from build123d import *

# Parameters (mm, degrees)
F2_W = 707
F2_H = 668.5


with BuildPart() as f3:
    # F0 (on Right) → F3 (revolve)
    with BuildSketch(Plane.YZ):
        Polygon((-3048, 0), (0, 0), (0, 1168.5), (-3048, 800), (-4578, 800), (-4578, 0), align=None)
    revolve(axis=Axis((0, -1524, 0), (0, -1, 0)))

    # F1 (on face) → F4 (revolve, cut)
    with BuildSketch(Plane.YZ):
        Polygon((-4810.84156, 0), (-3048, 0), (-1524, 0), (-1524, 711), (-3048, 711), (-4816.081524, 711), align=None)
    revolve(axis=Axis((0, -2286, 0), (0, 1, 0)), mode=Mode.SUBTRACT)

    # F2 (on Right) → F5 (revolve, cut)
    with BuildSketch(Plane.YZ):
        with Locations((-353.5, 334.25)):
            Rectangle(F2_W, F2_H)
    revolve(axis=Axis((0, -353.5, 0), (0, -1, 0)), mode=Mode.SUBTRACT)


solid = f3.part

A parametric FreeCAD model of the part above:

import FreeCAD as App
import Part
import Sketcher

V = App.Vector
Q = App.Units.Quantity

doc = App.newDocument("Part")
body = doc.addObject("PartDesign::Body", "Body")

# Sketch on YZ plane
sketch1 = body.newObject("Sketcher::SketchObject", "Sketch")
sketch1.AttachmentSupport = (doc.getObject("YZ_Plane"), [""])
sketch1.MapMode = "FlatFace"
sketch1.addGeometry([
    Part.LineSegment(V(0, 0, 0), V(0, 1168, 0)),  # 0
    Part.LineSegment(V(0, 1168, 0), V(-3048, 800, 0)),  # 1
    Part.LineSegment(V(-3048, 800, 0), V(-4578, 800, 0)),  # 2
    Part.LineSegment(V(-4578, 800, 0), V(-4578, 0, 0)),  # 3
    Part.LineSegment(V(-4578, 0, 0), V(0, 0, 0)),  # 4
], False)
sketch1.addConstraint([
    Sketcher.Constraint("Coincident", 0, 2, 1, 1),
    Sketcher.Constraint("Coincident", 1, 2, 2, 1),
    Sketcher.Constraint("Coincident", 2, 2, 3, 1),
    Sketcher.Constraint("Coincident", 3, 2, 4, 1),
    Sketcher.Constraint("Coincident", 4, 2, 0, 1),
    Sketcher.Constraint("Vertical", 0),
    Sketcher.Constraint("Horizontal", 2),
    Sketcher.Constraint("Vertical", 3),
    Sketcher.Constraint("Horizontal", 4),
    Sketcher.Constraint("Coincident", 4, 2, -1, 1),
    Sketcher.Constraint("DistanceX", 2, 2, 2, 1, Q("1530 mm")),
    Sketcher.Constraint("DistanceX", 4, 1, 4, 2, Q("4578 mm")),
    Sketcher.Constraint("DistanceY", 3, 2, 3, 1, Q("800 mm")),
    Sketcher.Constraint("DistanceY", 0, 1, 0, 2, Q("1168.5 mm")),
])
revolution = body.newObject("PartDesign::Revolution", "Revolution")
revolution.Profile = sketch1
revolution.ReferenceAxis = (sketch1, ["H_Axis"])
revolution.Angle = 360

# Sketch on YZ plane
sketch2 = body.newObject("Sketcher::SketchObject", "Sketch001")
sketch2.AttachmentSupport = (doc.getObject("YZ_Plane"), [""])
sketch2.MapMode = "FlatFace"
sketch2.addGeometry([
    Part.LineSegment(V(-4810.84156, 0, 0), V(-1524, 0, 0)),
    Part.LineSegment(V(-1524, 0, 0), V(-1524, 711, 0)),
    Part.LineSegment(V(-1524, 711, 0), V(-4816.081524, 711, 0)),
    Part.LineSegment(V(-4816.081524, 711, 0), V(-4810.84156, 0, 0)),
], False)
sketch2.addConstraint([
    Sketcher.Constraint("Coincident", 0, 2, 1, 1),
    Sketcher.Constraint("Coincident", 1, 2, 2, 1),
    Sketcher.Constraint("Coincident", 2, 2, 3, 1),
    Sketcher.Constraint("Coincident", 3, 2, 0, 1),
    Sketcher.Constraint("Horizontal", 0),
    Sketcher.Constraint("Vertical", 1),
    Sketcher.Constraint("Horizontal", 2),
    Sketcher.Constraint("PointOnObject", 0, 2, -1),
    Sketcher.Constraint("DistanceY", 1, 1, 1, 2, Q("711 mm")),
    Sketcher.Constraint("DistanceX", 0, 2, -1, 1, Q("1524 mm")),
    Sketcher.Constraint("DistanceX", 0, 1, 0, 2, Q("3286.84156 mm")),
    Sketcher.Constraint("Distance", 3, Q("711.019309 mm")),
])
groove = body.newObject("PartDesign::Groove", "Groove")
groove.Profile = sketch2
groove.ReferenceAxis = (sketch2, ["H_Axis"])
groove.Angle = 360

# Sketch on YZ plane
sketch3 = body.newObject("Sketcher::SketchObject", "Sketch002")
sketch3.AttachmentSupport = (doc.getObject("YZ_Plane"), [""])
sketch3.MapMode = "FlatFace"
sketch3.addGeometry([
    Part.LineSegment(V(-707, 668, 0), V(-707, 0, 0)),
    Part.LineSegment(V(-707, 0, 0), V(0, 0, 0)),
    Part.LineSegment(V(0, 0, 0), V(0, 668, 0)),
    Part.LineSegment(V(0, 668, 0), V(-707, 668, 0)),
], False)
sketch3.addConstraint([
    Sketcher.Constraint("Coincident", 0, 2, 1, 1),
    Sketcher.Constraint("Coincident", 1, 2, 2, 1),
    Sketcher.Constraint("Coincident", 2, 2, 3, 1),
    Sketcher.Constraint("Coincident", 3, 2, 0, 1),
    Sketcher.Constraint("Vertical", 0),
    Sketcher.Constraint("Horizontal", 1),
    Sketcher.Constraint("Vertical", 2),
    Sketcher.Constraint("Horizontal", 3),
    Sketcher.Constraint("Coincident", 1, 2, -1, 1),
    Sketcher.Constraint("DistanceX", 1, 1, 1, 2, Q("707 mm")),
    Sketcher.Constraint("DistanceY", 0, 2, 0, 1, Q("668.5 mm")),
])
groove2 = body.newObject("PartDesign::Groove", "Groove001")
groove2.Profile = sketch3
groove2.ReferenceAxis = (sketch3, ["H_Axis"])
groove2.Angle = 360

doc.recompute()
